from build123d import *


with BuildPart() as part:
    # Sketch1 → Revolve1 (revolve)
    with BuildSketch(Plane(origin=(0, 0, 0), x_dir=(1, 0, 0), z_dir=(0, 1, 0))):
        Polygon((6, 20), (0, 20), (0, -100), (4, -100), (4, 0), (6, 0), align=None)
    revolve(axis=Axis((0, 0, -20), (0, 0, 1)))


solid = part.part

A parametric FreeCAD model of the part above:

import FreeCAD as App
import Part
import Sketcher
from FreeCAD import Vector
Q = App.Units.Quantity


def add_polygon(sketch, points):
    """Adds a closed chain of lines whose ends are joined by coincident constraints."""
    first, n = sketch.GeometryCount, len(points)
    for a, b in zip(points, points[1:] + points[:1]):
        sketch.addGeometry(Part.LineSegment(App.Vector(*a, 0), App.Vector(*b, 0)), False)
    for i in range(n):
        sketch.addConstraint(Sketcher.Constraint("Coincident", first + i, 2, first + (i + 1) % n, 1))

doc = App.newDocument("Part")
params = doc.addObject("Spreadsheet::Sheet", "Params")
for row, (alias, value) in enumerate([
    ("sketch1_width", "6 mm"),
    ("sketch1_width2", "4 mm"),
    ("sketch1_height", "120 mm"),
    ("sketch1_height2", "100 mm"),
    ("revolution_angle", "360 deg"),
], start=1):
    params.set(f"A{row}", alias)
    params.set(f"B{row}", "=" + value)
    params.setAlias(f"B{row}", alias)

body = doc.addObject("PartDesign::Body", "Body")

sketch1 = body.newObject("Sketcher::SketchObject", "Sketch")
sketch1.AttachmentSupport = (doc.getObject("XZ_Plane"), [""])
sketch1.MapMode = "FlatFace"
add_polygon(sketch1, [(6, -20), (0, -20), (0, 100), (4, 100), (4, 0), (6, 0)])
sketch1.addConstraint([
    Sketcher.Constraint("Horizontal", 0),
    Sketcher.Constraint("Vertical", 1),
    Sketcher.Constraint("Horizontal", 2),
    Sketcher.Constraint("Vertical", 3),
    Sketcher.Constraint("Horizontal", 4),
    Sketcher.Constraint("Vertical", 5),
    Sketcher.Constraint("PointOnObject", 0, 2, -2),
    Sketcher.Constraint("PointOnObject", 3, 2, -1),
    Sketcher.Constraint("DistanceX", 0, 2, 0, 1, Q("6 mm")),
    Sketcher.Constraint("DistanceX", 2, 1, 2, 2, Q("4 mm")),
    Sketcher.Constraint("DistanceY", 1, 1, 1, 2, Q("120 mm")),
    Sketcher.Constraint("DistanceY", 3, 2, 3, 1, Q("100 mm")),
])
sketch1.setExpression("Constraints[14]", "Params.sketch1_width")
sketch1.setExpression("Constraints[15]", "Params.sketch1_width2")
sketch1.setExpression("Constraints[16]", "Params.sketch1_height")
sketch1.setExpression("Constraints[17]", "Params.sketch1_height2")
revolution = body.newObject("PartDesign::Revolution", "Revolution")
revolution.Profile = sketch1
revolution.ReferenceAxis = (sketch1, ["V_Axis"])
revolution.setExpression("Angle", "Params.revolution_angle")

doc.recompute()
